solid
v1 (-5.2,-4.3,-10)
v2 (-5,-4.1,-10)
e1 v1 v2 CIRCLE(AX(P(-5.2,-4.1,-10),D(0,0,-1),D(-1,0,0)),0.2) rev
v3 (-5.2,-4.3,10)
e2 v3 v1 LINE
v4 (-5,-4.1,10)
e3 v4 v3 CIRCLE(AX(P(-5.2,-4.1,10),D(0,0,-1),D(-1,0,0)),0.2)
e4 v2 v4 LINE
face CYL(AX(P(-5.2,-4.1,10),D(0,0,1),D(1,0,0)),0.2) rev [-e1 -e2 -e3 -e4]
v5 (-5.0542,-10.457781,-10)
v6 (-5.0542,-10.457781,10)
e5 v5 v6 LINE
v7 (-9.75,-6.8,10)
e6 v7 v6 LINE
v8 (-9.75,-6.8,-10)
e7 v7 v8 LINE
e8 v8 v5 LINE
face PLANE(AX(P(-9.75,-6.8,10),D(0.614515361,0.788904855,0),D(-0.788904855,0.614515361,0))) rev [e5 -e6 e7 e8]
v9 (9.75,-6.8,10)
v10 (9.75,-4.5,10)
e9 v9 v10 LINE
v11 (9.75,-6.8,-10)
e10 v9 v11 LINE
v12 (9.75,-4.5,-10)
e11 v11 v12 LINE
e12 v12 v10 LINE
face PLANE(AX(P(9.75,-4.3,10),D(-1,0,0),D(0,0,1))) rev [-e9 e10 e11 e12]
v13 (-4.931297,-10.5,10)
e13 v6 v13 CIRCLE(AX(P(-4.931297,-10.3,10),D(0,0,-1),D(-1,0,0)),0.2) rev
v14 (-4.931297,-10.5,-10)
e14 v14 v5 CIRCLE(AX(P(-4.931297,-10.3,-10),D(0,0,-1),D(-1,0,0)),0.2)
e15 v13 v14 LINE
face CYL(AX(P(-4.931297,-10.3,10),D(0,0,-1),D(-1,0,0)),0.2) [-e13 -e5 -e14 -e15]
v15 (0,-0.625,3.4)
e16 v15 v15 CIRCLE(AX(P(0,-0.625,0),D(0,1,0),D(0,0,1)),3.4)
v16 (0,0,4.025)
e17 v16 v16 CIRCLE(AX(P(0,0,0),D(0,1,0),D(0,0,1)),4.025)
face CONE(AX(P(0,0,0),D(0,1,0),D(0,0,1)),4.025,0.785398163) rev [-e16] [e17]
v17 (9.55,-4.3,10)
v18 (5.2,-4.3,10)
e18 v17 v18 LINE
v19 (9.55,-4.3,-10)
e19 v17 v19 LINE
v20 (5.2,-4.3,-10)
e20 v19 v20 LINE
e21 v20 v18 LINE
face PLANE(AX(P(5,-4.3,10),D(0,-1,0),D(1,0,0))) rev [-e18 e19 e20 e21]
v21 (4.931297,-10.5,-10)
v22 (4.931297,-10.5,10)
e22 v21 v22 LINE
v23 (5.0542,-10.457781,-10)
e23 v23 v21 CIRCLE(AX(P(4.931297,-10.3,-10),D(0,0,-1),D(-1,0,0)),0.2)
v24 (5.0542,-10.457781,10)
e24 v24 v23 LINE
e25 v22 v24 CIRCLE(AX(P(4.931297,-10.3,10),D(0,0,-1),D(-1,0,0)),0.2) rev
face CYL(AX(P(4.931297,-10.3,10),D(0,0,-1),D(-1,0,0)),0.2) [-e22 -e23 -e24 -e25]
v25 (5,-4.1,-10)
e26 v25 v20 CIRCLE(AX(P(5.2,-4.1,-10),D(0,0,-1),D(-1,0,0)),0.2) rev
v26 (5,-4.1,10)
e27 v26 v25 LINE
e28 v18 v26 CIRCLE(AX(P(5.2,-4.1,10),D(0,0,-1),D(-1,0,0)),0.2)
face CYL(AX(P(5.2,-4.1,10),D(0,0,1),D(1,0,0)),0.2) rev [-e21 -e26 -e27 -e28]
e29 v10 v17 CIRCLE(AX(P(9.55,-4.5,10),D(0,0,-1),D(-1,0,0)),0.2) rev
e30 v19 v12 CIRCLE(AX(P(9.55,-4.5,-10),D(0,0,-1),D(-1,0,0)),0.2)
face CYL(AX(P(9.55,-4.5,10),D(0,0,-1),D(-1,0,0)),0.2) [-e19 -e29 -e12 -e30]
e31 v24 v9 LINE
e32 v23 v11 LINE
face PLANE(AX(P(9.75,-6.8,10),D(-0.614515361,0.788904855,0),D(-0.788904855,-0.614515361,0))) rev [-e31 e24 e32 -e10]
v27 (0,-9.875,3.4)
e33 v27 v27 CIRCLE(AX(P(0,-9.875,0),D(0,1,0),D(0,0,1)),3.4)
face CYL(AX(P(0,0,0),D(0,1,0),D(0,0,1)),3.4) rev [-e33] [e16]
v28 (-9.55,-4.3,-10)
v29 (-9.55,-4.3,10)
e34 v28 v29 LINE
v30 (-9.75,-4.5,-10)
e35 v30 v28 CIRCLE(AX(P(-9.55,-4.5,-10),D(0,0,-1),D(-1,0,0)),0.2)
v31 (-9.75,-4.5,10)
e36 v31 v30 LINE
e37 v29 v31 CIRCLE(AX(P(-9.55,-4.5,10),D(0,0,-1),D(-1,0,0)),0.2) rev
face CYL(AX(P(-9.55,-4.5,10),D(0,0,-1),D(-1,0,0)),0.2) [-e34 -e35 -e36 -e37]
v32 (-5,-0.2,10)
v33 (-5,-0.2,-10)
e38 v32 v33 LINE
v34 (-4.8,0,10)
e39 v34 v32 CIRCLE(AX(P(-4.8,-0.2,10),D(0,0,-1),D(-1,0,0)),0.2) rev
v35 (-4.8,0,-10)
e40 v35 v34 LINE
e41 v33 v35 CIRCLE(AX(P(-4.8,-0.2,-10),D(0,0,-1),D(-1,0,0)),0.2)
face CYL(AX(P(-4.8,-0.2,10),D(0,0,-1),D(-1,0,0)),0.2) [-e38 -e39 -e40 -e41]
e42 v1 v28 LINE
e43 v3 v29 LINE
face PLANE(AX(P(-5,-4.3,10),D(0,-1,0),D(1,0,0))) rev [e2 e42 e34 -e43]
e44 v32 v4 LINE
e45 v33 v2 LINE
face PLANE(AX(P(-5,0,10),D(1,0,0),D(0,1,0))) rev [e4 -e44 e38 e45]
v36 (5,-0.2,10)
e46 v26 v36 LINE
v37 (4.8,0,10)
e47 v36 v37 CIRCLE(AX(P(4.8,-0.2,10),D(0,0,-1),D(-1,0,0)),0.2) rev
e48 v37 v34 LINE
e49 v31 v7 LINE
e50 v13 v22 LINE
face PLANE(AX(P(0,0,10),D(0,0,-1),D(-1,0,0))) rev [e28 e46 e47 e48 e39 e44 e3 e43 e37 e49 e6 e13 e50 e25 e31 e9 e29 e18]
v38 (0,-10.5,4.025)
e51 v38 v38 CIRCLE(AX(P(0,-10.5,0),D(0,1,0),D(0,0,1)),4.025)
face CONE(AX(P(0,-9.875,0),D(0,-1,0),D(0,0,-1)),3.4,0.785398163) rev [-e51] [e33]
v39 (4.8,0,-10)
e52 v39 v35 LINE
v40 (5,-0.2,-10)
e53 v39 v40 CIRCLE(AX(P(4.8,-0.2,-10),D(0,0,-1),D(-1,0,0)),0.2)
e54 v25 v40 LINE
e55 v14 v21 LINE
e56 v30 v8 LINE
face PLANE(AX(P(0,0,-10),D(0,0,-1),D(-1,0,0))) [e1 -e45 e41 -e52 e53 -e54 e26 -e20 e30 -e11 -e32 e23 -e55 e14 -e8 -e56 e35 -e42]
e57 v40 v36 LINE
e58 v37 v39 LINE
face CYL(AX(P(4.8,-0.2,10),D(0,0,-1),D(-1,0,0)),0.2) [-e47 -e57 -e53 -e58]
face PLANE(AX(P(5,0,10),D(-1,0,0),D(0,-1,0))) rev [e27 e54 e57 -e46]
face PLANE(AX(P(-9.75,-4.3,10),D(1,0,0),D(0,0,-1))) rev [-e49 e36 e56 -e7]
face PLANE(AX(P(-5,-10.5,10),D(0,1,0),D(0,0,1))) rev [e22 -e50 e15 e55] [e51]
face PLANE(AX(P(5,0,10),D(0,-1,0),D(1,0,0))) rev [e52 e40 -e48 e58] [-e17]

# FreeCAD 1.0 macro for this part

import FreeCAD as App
import Part
import Sketcher
from FreeCAD import Vector
Q = App.Units.Quantity


def edges_at(feature, points):
    """Names of the edges that pass closest to the given points."""
    edges = feature.Shape.Edges
    near = lambda p: min(range(len(edges)), key=lambda i: edges[i].distToShape(Part.Vertex(*p))[0])
    return sorted({f"Edge{near(p) + 1}" for p in points})


def add_polygon(sketch, points):
    """Adds a closed chain of lines whose ends are joined by coincident constraints."""
    first, n = sketch.GeometryCount, len(points)
    for a, b in zip(points, points[1:] + points[:1]):
        sketch.addGeometry(Part.LineSegment(App.Vector(*a, 0), App.Vector(*b, 0)), False)
    for i in range(n):
        sketch.addConstraint(Sketcher.Constraint("Coincident", first + i, 2, first + (i + 1) % n, 1))

doc = App.newDocument("Part")
body = doc.addObject("PartDesign::Body", "Body")

# Sketch on XY plane
sketch1 = doc.addObject("Sketcher::SketchObject", "Sketch")
body.addObject(sketch1)
sketch1.AttachmentSupport = (doc.XY_Plane, [""])
sketch1.MapMode = "FlatFace"
add_polygon(sketch1, [(5, 0), (-5, 0), (-5, -4.3), (-9.8, -4.3), (-9.8, -6.8), (-5, -10.5), (5, -10.5), (9.8, -6.8), (9.8, -4.3), (5, -4.3)])  # lines 0-9
sketch1.addConstraint([
    Sketcher.Constraint("Horizontal", 0),
    Sketcher.Constraint("Vertical", 1),
    Sketcher.Constraint("Horizontal", 2),
    Sketcher.Constraint("Vertical", 3),
    Sketcher.Constraint("Horizontal", 5),
    Sketcher.Constraint("Vertical", 7),
    Sketcher.Constraint("Horizontal", 8),
    Sketcher.Constraint("Vertical", 9),
    Sketcher.Constraint("Symmetric", 0, 2, 9, 2, -1, 1),
    Sketcher.Constraint("Symmetric", 3, 2, 6, 2, -2),
    Sketcher.Constraint("Horizontal", 2, 2, 7, 2),
    Sketcher.Constraint("Vertical", 1, 2, 4, 2),
    Sketcher.Constraint("Vertical", 5, 2, 8, 2),
    Sketcher.Constraint("DistanceX", 0, 2, 0, 1, Q("10 mm")),
    Sketcher.Constraint("DistanceY", 1, 2, 1, 1, Q("4.3 mm")),
    Sketcher.Constraint("DistanceY", 3, 2, 3, 1, Q("2.5 mm")),
    Sketcher.Constraint("DistanceX", 2, 2, 2, 1, Q("4.75 mm")),
    Sketcher.Constraint("DistanceY", 4, 2, -1, 1, Q("10.5 mm")),
])
pad1 = doc.addObject("PartDesign::Pad", "Pad")
body.addObject(pad1)
pad1.Profile = sketch1
pad1.Length = 20
pad1.Midplane = True

# Sketch on YZ plane
sketch2 = doc.addObject("Sketcher::SketchObject", "Sketch001")
body.addObject(sketch2)
sketch2.AttachmentSupport = (doc.YZ_Plane, [""])
sketch2.MapMode = "FlatFace"
add_polygon(sketch2, [(-10.5, 0), (0, 0), (0, 4), (-0.6, 3.4), (-9.9, 3.4), (-10.5, 4)])  # lines 0-5
sketch2.addConstraint([
    Sketcher.Constraint("Horizontal", 0),
    Sketcher.Constraint("Vertical", 1),
    Sketcher.Constraint("Horizontal", 3),
    Sketcher.Constraint("Vertical", 5),
    Sketcher.Constraint("Coincident", 0, 2, -1, 1),
    Sketcher.Constraint("Perpendicular", 2, 4),
    Sketcher.Constraint("Horizontal", 1, 2, 4, 2),
    Sketcher.Constraint("Equal", 2, 4),
    Sketcher.Constraint("DistanceX", 0, 1, 0, 2, Q("10.5 mm")),
    Sketcher.Constraint("DistanceX", 3, 2, 3, 1, Q("9.25 mm")),
    Sketcher.Constraint("DistanceY", -1, 1, 2, 2, Q("3.4 mm")),
])
groove = doc.addObject("PartDesign::Groove", "Groove")
body.addObject(groove)
groove.Profile = sketch2
groove.ReferenceAxis = (sketch2, ["H_Axis"])
groove.Angle = 360
doc.recompute()

fillet = doc.addObject("PartDesign::Fillet", "Fillet")
body.addObject(fillet)
fillet.Base = (groove, edges_at(groove, [
    (-5, 0, 0),
    (5, 0, 0),
    (5, -4.3, 0),
    (9.75, -4.3, 0),
    (5, -10.5, 0),
    (-5, -10.5, 0),
    (-9.75, -4.3, 0),
    (-5, -4.3, 0),
]))
fillet.Radius = 0.2

doc.recompute()
